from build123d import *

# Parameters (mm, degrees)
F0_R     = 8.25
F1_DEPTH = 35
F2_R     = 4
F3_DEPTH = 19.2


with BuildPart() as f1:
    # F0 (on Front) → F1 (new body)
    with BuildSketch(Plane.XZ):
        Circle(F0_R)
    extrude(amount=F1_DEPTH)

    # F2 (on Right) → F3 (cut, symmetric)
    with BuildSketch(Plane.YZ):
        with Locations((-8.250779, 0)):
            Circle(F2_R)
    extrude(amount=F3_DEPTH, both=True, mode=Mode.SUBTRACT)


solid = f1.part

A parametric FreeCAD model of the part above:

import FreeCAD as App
import Part
import Sketcher
from FreeCAD import Vector

doc = App.newDocument("Part")
params = doc.addObject("Spreadsheet::Sheet", "Params")
for row, (alias, value) in enumerate([
    ("sketch1_diameter", "16.5 mm"),
    ("pad1_length", "35 mm"),
    ("sketch2_diameter", "8 mm"),
    ("pocket1_length", "38.4 mm"),
], start=1):
    params.set(f"A{row}", alias)
    params.set(f"B{row}", "=" + value)
    params.setAlias(f"B{row}", alias)

body = doc.addObject("PartDesign::Body", "Body")

# Sketch on XZ plane
sketch1 = body.newObject("Sketcher::SketchObject", "Sketch")
sketch1.AttachmentSupport = (doc.getObject("XZ_Plane"), [""])
sketch1.MapMode = "FlatFace"
sketch1.addGeometry(Part.Circle(Vector(0, 0, 0), Vector(0, 0, 1), 8), False)
sketch1.addConstraint([
    Sketcher.Constraint("Coincident", 0, 3, -1, 1),
    Sketcher.Constraint("Diameter", 0, 16.5),
])
sketch1.setExpression("Constraints[1]", "Params.sketch1_diameter")
pad1 = body.newObject("PartDesign::Pad", "Pad")
pad1.Profile = sketch1
pad1.setExpression("Length", "Params.pad1_length")

# Sketch on YZ plane
sketch2 = body.newObject("Sketcher::SketchObject", "Sketch001")
sketch2.AttachmentSupport = (doc.getObject("YZ_Plane"), [""])
sketch2.MapMode = "FlatFace"
sketch2.addGeometry(Part.Circle(Vector(-8.3, 0, 0), Vector(0, 0, 1), 4), False)
sketch2.addConstraint([
    Sketcher.Constraint("PointOnObject", 0, 3, -1),
    Sketcher.Constraint("Diameter", 0, 8.0),
    Sketcher.Constraint("DistanceX", 0, 3, -1, 1, 8.250779),
])
sketch2.setExpression("Constraints[1]", "Params.sketch2_diameter")
pocket1 = body.newObject("PartDesign::Pocket", "Pocket")
pocket1.Profile = sketch2
pocket1.setExpression("Length", "Params.pocket1_length")
pocket1.Midplane = True

doc.recompute()
